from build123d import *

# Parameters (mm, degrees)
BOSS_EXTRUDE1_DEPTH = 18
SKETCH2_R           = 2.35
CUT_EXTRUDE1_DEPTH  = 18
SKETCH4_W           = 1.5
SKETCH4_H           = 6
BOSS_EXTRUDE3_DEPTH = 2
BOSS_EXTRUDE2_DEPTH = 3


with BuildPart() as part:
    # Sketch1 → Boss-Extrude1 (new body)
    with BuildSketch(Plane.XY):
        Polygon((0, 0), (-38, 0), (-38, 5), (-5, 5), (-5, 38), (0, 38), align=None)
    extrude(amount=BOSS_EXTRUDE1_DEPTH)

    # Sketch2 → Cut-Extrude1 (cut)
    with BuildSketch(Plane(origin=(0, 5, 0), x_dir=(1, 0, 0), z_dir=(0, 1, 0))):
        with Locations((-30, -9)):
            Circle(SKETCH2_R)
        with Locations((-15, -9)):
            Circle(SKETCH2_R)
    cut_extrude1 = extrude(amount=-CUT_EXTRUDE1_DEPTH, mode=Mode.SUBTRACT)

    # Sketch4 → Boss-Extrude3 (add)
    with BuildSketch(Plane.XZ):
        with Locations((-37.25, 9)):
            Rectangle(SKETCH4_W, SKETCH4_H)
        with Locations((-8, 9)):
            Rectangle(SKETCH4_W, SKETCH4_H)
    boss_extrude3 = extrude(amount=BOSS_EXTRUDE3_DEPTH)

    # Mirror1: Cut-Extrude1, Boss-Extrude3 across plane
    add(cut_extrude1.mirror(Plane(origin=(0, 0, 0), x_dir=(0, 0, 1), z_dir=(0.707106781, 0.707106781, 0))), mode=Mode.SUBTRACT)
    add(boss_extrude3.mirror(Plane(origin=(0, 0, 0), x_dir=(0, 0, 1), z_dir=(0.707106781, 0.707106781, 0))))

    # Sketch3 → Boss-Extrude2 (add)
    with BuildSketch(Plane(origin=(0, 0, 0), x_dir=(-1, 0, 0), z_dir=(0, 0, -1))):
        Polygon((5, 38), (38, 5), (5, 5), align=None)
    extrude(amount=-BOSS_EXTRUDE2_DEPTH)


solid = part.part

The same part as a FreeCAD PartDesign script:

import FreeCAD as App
import Part
import Sketcher

V = App.Vector
Q = App.Units.Quantity

doc = App.newDocument("Part")
body = doc.addObject("PartDesign::Body", "Body")

sketch1 = body.newObject("Sketcher::SketchObject", "Sketch")
sketch1.AttachmentSupport = (doc.getObject("XY_Plane"), [""])
sketch1.MapMode = "FlatFace"
sketch1.addGeometry([
    Part.LineSegment(V(-38, 0, 0), V(0, 0, 0)),
    Part.LineSegment(V(0, 0, 0), V(0, 38, 0)),
    Part.LineSegment(V(0, 38, 0), V(-5, 38, 0)),
    Part.LineSegment(V(-5, 38, 0), V(-5, 5, 0)),
    Part.LineSegment(V(-5, 5, 0), V(-38, 5, 0)),
    Part.LineSegment(V(-38, 5, 0), V(-38, 0, 0)),
], False)
sketch1.addConstraint([
    Sketcher.Constraint("Coincident", 0, 2, 1, 1),
    Sketcher.Constraint("Coincident", 1, 2, 2, 1),
    Sketcher.Constraint("Coincident", 2, 2, 3, 1),
    Sketcher.Constraint("Coincident", 3, 2, 4, 1),
    Sketcher.Constraint("Coincident", 4, 2, 5, 1),
    Sketcher.Constraint("Coincident", 5, 2, 0, 1),
    Sketcher.Constraint("Horizontal", 0),
    Sketcher.Constraint("Vertical", 1),
    Sketcher.Constraint("Horizontal", 2),
    Sketcher.Constraint("Vertical", 3),
    Sketcher.Constraint("Horizontal", 4),
    Sketcher.Constraint("Vertical", 5),
    Sketcher.Constraint("Coincident", 0, 2, -1, 1),
    Sketcher.Constraint("Equal", 0, 1),
    Sketcher.Constraint("Equal", 4, 3),
    Sketcher.Constraint("DistanceX", 0, 1, 0, 2, Q("38 mm")),
    Sketcher.Constraint("DistanceX", 2, 2, 2, 1, Q("5 mm")),
])
pad1 = body.newObject("PartDesign::Pad", "Pad")
pad1.Profile = sketch1
pad1.Length = 18

sketch2 = body.newObject("Sketcher::SketchObject", "Sketch001")
sketch2.AttachmentSupport = (doc.getObject("XZ_Plane"), [""])
sketch2.MapMode = "FlatFace"
sketch2.AttachmentOffset = App.Placement(V(0, 0, -5), App.Rotation())
sketch2.addGeometry([
    Part.Circle(V(-30, 9, 0), V(0, 0, 1), 2.4),
    Part.Circle(V(-15, 9, 0), V(0, 0, 1), 2.4),
], False)
sketch2.addConstraint([
    Sketcher.Constraint("Equal", 0, 1),
    Sketcher.Constraint("Horizontal", 0, 3, 1, 3),
    Sketcher.Constraint("Diameter", 0, Q("4.7 mm")),
    Sketcher.Constraint("DistanceX", 0, 3, -1, 1, Q("30 mm")),
    Sketcher.Constraint("DistanceY", -1, 1, 0, 3, Q("9 mm")),
    Sketcher.Constraint("DistanceX", 1, 3, -1, 1, Q("15 mm")),
])
pocket1 = body.newObject("PartDesign::Pocket", "Pocket")
pocket1.Profile = sketch2
pocket1.Length = 18
pocket1.Reversed = True

sketch3 = body.newObject("Sketcher::SketchObject", "Sketch002")
sketch3.AttachmentSupport = (doc.getObject("XZ_Plane"), [""])
sketch3.MapMode = "FlatFace"
sketch3.addGeometry([
    Part.LineSegment(V(-38, 12, 0), V(-38, 6, 0)),
    Part.LineSegment(V(-38, 6, 0), V(-36.5, 6, 0)),
    Part.LineSegment(V(-36.5, 6, 0), V(-36.5, 12, 0)),
    Part.LineSegment(V(-36.5, 12, 0), V(-38, 12, 0)),
    Part.LineSegment(V(-8.8, 12, 0), V(-8.8, 6, 0)),
    Part.LineSegment(V(-8.8, 6, 0), V(-7.2, 6, 0)),
    Part.LineSegment(V(-7.2, 6, 0), V(-7.2, 12, 0)),
    Part.LineSegment(V(-7.2, 12, 0), V(-8.8, 12, 0)),
], False)
sketch3.addConstraint([
    Sketcher.Constraint("Coincident", 0, 2, 1, 1),
    Sketcher.Constraint("Coincident", 1, 2, 2, 1),
    Sketcher.Constraint("Coincident", 2, 2, 3, 1),
    Sketcher.Constraint("Coincident", 3, 2, 0, 1),
    Sketcher.Constraint("Coincident", 4, 2, 5, 1),
    Sketcher.Constraint("Coincident", 5, 2, 6, 1),
    Sketcher.Constraint("Coincident", 6, 2, 7, 1),
    Sketcher.Constraint("Coincident", 7, 2, 4, 1),
    Sketcher.Constraint("Vertical", 0),
    Sketcher.Constraint("Horizontal", 1),
    Sketcher.Constraint("Vertical", 2),
    Sketcher.Constraint("Horizontal", 3),
    Sketcher.Constraint("Vertical", 4),
    Sketcher.Constraint("Horizontal", 5),
    Sketcher.Constraint("Vertical", 6),
    Sketcher.Constraint("Horizontal", 7),
    Sketcher.Constraint("Horizontal", 1, 2, 4, 2),
    Sketcher.Constraint("Horizontal", 3, 2, 6, 2),
    Sketcher.Constraint("Equal", 3, 5),
    Sketcher.Constraint("DistanceY", 0, 2, 0, 1, Q("6 mm")),
    Sketcher.Constraint("DistanceX", 1, 1, 1, 2, Q("1.5 mm")),
    Sketcher.Constraint("DistanceX", 0, 2, -1, 1, Q("38 mm")),
    Sketcher.Constraint("DistanceY", -1, 1, 0, 2, Q("6 mm")),
    Sketcher.Constraint("DistanceX", 4, 2, -1, 1, Q("8.75 mm")),
])
pad2 = body.newObject("PartDesign::Pad", "Pad001")
pad2.Profile = sketch3
pad2.Length = 2
doc.recompute()

datumplane = body.newObject("PartDesign::Plane", "DatumPlane")
datumplane.Placement = App.Placement(V(0, 0, 0), App.Rotation(V(0.707106781, -0.707106781, 0), V(0, 0, -1), V(0.707106781, 0.707106781, 0), "ZXY"))
mirrored = body.newObject("PartDesign::Mirrored", "Mirrored")
mirrored.Originals = [pocket1, pad2]
mirrored.MirrorPlane = (datumplane, [""])
body.Tip = mirrored

sketch4 = body.newObject("Sketcher::SketchObject", "Sketch003")
sketch4.AttachmentSupport = (doc.getObject("XY_Plane"), [""])
sketch4.MapMode = "FlatFace"
sketch4.addGeometry([
    Part.LineSegment(V(-38, 5, 0), V(-5, 38, 0)),
    Part.LineSegment(V(-5, 38, 0), V(-5, 5, 0)),
    Part.LineSegment(V(-5, 5, 0), V(-38, 5, 0)),
], False)
sketch4.addConstraint([
    Sketcher.Constraint("Coincident", 0, 2, 1, 1),
    Sketcher.Constraint("Coincident", 1, 2, 2, 1),
    Sketcher.Constraint("Coincident", 2, 2, 0, 1),
    Sketcher.Constraint("Vertical", 1),
    Sketcher.Constraint("Horizontal", 2),
    Sketcher.Constraint("Equal", 2, 1),
    Sketcher.Constraint("DistanceX", 2, 2, 2, 1, Q("33 mm")),
    Sketcher.Constraint("DistanceX", 0, 2, -1, 1, Q("5 mm")),
    Sketcher.Constraint("DistanceY", -1, 1, 0, 2, Q("38 mm")),
])
pad3 = body.newObject("PartDesign::Pad", "Pad002")
pad3.Profile = sketch4
pad3.Length = 3

doc.recompute()
